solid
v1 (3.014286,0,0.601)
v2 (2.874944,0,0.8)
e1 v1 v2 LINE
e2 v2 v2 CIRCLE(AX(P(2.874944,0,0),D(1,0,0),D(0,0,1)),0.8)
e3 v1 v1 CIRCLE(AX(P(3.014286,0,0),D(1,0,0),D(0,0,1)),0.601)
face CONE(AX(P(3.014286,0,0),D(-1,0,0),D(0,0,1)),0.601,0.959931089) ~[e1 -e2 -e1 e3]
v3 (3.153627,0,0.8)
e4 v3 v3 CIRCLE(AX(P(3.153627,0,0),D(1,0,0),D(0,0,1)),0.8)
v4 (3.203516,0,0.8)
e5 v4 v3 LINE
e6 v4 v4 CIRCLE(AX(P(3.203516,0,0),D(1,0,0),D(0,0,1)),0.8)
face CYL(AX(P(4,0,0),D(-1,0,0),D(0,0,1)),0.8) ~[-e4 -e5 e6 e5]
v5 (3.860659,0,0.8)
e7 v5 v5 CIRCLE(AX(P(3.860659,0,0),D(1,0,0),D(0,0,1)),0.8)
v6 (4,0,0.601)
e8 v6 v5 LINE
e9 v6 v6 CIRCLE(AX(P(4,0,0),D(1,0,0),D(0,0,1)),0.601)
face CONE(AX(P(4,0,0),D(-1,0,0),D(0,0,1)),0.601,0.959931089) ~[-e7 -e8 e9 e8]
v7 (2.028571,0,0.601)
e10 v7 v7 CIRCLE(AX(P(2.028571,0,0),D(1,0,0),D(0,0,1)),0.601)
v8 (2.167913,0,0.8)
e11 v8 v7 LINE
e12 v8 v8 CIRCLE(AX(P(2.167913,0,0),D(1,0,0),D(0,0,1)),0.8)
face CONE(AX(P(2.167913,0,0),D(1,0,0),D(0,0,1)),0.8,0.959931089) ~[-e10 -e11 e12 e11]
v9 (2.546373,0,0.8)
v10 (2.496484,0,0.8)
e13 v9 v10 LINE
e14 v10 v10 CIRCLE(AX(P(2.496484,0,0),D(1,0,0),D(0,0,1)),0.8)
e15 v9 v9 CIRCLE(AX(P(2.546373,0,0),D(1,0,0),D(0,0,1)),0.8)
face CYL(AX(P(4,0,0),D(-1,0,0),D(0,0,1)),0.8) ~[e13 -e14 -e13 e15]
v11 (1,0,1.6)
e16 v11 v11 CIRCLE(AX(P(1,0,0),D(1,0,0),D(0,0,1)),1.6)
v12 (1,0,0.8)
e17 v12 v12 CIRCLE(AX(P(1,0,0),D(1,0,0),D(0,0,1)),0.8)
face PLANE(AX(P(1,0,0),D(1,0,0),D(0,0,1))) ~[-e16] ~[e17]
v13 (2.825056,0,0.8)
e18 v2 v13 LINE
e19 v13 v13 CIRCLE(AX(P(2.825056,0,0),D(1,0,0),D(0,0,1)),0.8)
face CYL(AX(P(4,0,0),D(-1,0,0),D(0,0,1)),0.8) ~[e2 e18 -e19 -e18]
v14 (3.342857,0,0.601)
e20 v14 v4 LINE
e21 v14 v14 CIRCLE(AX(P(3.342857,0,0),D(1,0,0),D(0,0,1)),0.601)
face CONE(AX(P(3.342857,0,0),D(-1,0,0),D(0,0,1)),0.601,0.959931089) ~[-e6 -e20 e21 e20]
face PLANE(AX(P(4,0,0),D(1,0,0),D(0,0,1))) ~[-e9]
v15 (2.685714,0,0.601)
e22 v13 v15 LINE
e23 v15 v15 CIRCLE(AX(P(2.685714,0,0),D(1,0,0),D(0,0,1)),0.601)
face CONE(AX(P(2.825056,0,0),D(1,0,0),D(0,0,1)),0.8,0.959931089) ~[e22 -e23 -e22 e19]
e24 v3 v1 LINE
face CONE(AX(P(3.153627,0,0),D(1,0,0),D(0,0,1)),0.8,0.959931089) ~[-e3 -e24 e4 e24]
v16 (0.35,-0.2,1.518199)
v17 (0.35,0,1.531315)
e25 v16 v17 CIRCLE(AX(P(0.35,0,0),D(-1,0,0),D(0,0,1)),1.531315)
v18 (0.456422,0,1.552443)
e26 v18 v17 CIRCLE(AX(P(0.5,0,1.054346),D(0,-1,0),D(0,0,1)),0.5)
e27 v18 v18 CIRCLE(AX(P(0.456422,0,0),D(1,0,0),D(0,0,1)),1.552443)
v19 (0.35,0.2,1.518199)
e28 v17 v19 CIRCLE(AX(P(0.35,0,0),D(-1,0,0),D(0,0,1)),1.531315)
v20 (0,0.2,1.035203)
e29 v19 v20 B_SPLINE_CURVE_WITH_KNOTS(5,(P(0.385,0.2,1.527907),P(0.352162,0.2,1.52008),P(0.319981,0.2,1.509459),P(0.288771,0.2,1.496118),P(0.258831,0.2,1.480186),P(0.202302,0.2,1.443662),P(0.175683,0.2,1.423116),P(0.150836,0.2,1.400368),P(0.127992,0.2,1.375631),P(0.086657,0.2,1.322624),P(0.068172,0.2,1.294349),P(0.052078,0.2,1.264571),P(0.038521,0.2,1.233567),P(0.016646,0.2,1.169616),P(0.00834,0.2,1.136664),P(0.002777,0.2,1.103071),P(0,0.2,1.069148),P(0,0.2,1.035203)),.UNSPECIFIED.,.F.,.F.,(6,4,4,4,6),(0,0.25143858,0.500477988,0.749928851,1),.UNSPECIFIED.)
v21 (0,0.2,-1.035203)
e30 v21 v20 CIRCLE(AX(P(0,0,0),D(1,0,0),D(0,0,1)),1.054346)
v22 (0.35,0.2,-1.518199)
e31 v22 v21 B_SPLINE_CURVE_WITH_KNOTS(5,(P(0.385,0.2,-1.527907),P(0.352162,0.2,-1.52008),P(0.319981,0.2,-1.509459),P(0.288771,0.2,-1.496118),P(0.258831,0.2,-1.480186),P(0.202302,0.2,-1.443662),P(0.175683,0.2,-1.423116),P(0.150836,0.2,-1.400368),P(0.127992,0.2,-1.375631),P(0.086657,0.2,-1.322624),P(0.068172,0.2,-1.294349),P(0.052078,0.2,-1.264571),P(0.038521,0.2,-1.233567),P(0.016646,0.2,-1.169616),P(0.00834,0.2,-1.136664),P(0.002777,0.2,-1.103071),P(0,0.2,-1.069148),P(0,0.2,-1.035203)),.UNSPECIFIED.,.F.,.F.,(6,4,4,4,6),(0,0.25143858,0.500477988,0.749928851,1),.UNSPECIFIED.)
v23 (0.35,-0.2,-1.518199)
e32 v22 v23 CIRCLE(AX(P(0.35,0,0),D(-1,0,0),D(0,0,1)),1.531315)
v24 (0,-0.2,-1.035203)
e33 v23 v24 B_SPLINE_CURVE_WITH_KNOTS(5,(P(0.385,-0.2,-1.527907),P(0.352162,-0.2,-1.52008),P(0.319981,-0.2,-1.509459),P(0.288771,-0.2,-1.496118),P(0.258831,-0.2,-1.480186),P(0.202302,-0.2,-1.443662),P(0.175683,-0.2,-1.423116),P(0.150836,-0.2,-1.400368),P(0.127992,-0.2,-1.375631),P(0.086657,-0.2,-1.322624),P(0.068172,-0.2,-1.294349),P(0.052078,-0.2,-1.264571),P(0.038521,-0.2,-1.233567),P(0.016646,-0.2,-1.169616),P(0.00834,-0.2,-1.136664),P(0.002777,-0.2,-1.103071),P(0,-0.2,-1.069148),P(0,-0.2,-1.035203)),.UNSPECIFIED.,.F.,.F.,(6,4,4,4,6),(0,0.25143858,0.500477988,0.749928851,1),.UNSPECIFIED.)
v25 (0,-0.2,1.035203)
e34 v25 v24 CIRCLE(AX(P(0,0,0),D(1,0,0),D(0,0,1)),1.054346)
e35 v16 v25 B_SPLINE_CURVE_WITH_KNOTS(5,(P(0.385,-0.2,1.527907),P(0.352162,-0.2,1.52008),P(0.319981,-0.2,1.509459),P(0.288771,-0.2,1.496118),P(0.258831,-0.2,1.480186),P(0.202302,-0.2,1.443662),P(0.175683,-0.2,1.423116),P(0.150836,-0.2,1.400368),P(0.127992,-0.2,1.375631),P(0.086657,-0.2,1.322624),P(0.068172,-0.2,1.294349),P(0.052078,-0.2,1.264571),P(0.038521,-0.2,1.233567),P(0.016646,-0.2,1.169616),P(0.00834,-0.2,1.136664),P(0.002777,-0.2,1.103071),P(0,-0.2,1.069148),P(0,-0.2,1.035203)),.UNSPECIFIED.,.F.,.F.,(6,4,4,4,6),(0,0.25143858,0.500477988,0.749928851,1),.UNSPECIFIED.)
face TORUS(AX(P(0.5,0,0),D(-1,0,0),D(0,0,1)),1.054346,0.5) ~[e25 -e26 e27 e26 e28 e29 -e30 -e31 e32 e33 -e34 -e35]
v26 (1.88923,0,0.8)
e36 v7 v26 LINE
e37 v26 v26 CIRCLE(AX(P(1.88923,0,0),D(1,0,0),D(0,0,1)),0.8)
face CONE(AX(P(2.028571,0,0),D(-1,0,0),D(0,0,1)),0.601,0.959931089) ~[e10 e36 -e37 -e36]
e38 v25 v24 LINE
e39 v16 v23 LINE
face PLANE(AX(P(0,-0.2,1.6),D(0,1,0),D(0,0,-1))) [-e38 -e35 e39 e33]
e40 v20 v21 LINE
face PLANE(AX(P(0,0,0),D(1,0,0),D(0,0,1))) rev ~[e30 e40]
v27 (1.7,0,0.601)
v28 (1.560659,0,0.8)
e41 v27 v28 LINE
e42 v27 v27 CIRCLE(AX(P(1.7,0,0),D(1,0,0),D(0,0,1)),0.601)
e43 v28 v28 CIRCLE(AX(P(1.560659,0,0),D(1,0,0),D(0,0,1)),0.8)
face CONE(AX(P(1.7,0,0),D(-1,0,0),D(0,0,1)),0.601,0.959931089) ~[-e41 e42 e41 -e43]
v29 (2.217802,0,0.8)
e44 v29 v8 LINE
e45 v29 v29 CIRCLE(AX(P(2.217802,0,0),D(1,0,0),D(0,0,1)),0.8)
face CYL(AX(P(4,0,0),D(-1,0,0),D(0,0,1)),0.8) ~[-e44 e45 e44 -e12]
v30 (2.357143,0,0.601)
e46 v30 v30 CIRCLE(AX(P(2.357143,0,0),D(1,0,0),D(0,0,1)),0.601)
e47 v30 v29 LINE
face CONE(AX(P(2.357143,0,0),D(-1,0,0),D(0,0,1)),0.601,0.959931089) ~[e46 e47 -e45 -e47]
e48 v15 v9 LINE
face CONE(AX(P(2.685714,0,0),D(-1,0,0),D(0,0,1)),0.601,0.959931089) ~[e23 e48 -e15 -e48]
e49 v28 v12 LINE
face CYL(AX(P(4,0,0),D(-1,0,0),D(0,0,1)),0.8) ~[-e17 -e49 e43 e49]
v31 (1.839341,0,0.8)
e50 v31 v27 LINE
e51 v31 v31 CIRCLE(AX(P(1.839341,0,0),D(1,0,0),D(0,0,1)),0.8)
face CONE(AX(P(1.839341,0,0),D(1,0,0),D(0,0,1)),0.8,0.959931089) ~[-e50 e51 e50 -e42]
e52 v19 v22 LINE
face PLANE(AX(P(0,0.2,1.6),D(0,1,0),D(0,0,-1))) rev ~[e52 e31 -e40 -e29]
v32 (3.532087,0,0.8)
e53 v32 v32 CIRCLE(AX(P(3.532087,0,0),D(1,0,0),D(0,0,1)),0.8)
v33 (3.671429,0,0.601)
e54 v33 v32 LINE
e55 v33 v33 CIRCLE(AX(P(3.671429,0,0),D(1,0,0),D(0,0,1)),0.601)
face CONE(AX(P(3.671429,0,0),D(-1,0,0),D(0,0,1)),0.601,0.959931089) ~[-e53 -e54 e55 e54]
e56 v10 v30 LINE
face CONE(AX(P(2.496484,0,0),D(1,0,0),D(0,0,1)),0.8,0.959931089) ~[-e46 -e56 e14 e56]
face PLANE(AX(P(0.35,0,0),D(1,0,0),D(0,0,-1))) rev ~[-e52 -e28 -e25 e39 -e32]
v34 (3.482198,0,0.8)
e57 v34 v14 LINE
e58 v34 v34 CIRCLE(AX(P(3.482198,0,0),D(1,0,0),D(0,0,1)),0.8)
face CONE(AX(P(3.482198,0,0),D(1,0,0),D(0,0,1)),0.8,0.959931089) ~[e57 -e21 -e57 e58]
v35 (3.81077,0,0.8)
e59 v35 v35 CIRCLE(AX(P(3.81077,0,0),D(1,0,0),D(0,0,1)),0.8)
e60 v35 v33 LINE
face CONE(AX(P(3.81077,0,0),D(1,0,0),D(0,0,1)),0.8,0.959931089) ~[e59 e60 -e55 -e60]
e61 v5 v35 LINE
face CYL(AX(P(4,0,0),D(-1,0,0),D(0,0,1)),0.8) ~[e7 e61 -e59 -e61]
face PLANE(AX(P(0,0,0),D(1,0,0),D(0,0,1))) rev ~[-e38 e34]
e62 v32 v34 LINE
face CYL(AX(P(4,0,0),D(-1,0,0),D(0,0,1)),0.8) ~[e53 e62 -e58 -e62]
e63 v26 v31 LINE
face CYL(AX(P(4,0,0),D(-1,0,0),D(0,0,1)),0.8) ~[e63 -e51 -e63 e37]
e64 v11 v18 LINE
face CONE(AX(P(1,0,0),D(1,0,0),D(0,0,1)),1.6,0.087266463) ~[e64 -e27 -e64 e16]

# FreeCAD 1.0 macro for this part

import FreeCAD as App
import Part
import Sketcher

V = App.Vector
Q = App.Units.Quantity


def edges_at(feature, points):
    """Names of the edges that pass closest to the given points."""
    edges = feature.Shape.Edges
    near = lambda p: min(range(len(edges)), key=lambda i: edges[i].distToShape(Part.Vertex(*p))[0])
    return sorted({f"Edge{near(p) + 1}" for p in points})


def add_polygon(sketch, points):
    """Adds a closed chain of lines whose ends are joined by coincident constraints."""
    first, n = sketch.GeometryCount, len(points)
    for a, b in zip(points, points[1:] + points[:1]):
        sketch.addGeometry(Part.LineSegment(App.Vector(*a, 0), App.Vector(*b, 0)), False)
    for i in range(n):
        sketch.addConstraint(Sketcher.Constraint("Coincident", first + i, 2, first + (i + 1) % n, 1))

doc = App.newDocument("Part")
body = doc.addObject("PartDesign::Body", "Body")

# Sketch on XY plane
sketch1 = body.newObject("Sketcher::SketchObject", "Sketch")
sketch1.AttachmentSupport = (doc.getObject("XY_Plane"), [""])
sketch1.MapMode = "FlatFace"
add_polygon(sketch1, [(1, 0.8), (1, 1.6), (0, 1.5), (0, 0), (4, 0), (4, 0.8)])  # lines 0-5
sketch1.addConstraint([
    Sketcher.Constraint("Vertical", 0),
    Sketcher.Constraint("Vertical", 2),
    Sketcher.Constraint("Horizontal", 3),
    Sketcher.Constraint("Vertical", 4),
    Sketcher.Constraint("Horizontal", 5),
    Sketcher.Constraint("Coincident", 2, 2, -1, 1),
    Sketcher.Constraint("Equal", 0, 4),
    Sketcher.Constraint("DistanceX", 3, 1, 3, 2, Q("4 mm")),
    Sketcher.Constraint("DistanceX", 5, 2, 5, 1, Q("3 mm")),
    Sketcher.Constraint("Angle", 1, Q("-175 deg")),
    Sketcher.Constraint("DistanceY", 0, 1, 0, 2, Q("0.8 mm")),
])
revolution = body.newObject("PartDesign::Revolution", "Revolution")
revolution.Profile = sketch1
revolution.ReferenceAxis = (sketch1, ["H_Axis"])
revolution.Angle = 360
doc.recompute()

fillet = body.newObject("PartDesign::Fillet", "Fillet")
fillet.Base = (revolution, edges_at(revolution, [(0, 0, -1.513)]))
fillet.Radius = 0.5

# Sketch on YZ plane
sketch2 = body.newObject("Sketcher::SketchObject", "Sketch001")
sketch2.AttachmentSupport = (doc.getObject("YZ_Plane"), [""])
sketch2.MapMode = "FlatFace"
add_polygon(sketch2, [(0.2, 1.6), (-0.2, 1.6), (-0.2, -1.6), (0.2, -1.6)])  # lines 0-3
sketch2.addConstraint([
    Sketcher.Constraint("Horizontal", 0),
    Sketcher.Constraint("Vertical", 1),
    Sketcher.Constraint("Horizontal", 2),
    Sketcher.Constraint("Vertical", 3),
    Sketcher.Constraint("Symmetric", 0, 2, 2, 2, -1, 1),
    Sketcher.Constraint("DistanceX", 0, 2, 0, 1, Q("0.4 mm")),
    Sketcher.Constraint("DistanceY", 1, 2, 1, 1, Q("3.2 mm")),
])
pocket1 = body.newObject("PartDesign::Pocket", "Pocket")
pocket1.Profile = sketch2
pocket1.Length = 0.35
pocket1.Reversed = True

# Sketch on XY plane
sketch3 = body.newObject("Sketcher::SketchObject", "Sketch002")
sketch3.AttachmentSupport = (doc.getObject("XY_Plane"), [""])
sketch3.MapMode = "FlatFace"
add_polygon(sketch3, [(1.7, -0.6), (1.56, -0.8), (1.56, -1), (1.84, -1), (1.84, -0.8)])  # lines 0-4
sketch3.addConstraint([
    Sketcher.Constraint("Vertical", 1),
    Sketcher.Constraint("Horizontal", 2),
    Sketcher.Constraint("Vertical", 3),
    Sketcher.Constraint("Horizontal", 0, 2, 3, 2),
    Sketcher.Constraint("Equal", 0, 4),
    Sketcher.Constraint("Angle", 0, Q("-125 deg")),
    Sketcher.Constraint("DistanceY", 1, 2, 1, 1, Q("0.2 mm")),
    Sketcher.Constraint("DistanceY", 1, 2, -1, 1, Q("1 mm")),
    Sketcher.Constraint("DistanceX", -1, 1, 4, 2, Q("1.7 mm")),
    Sketcher.Constraint("DistanceY", 4, 2, -1, 1, Q("0.601 mm")),
])
groove = body.newObject("PartDesign::Groove", "Groove")
groove.Profile = sketch3
groove.ReferenceAxis = (sketch3, ["H_Axis"])
groove.Angle = 360
doc.recompute()

linearpattern = body.newObject("PartDesign::LinearPattern", "LinearPattern")
linearpattern.Originals = [groove]
linearpattern.Direction = (doc.getObject("X_Axis"), [""])
linearpattern.Mode = "offset"
linearpattern.Offset = 0.328571
linearpattern.Occurrences = 8
body.Tip = linearpattern

doc.recompute()
